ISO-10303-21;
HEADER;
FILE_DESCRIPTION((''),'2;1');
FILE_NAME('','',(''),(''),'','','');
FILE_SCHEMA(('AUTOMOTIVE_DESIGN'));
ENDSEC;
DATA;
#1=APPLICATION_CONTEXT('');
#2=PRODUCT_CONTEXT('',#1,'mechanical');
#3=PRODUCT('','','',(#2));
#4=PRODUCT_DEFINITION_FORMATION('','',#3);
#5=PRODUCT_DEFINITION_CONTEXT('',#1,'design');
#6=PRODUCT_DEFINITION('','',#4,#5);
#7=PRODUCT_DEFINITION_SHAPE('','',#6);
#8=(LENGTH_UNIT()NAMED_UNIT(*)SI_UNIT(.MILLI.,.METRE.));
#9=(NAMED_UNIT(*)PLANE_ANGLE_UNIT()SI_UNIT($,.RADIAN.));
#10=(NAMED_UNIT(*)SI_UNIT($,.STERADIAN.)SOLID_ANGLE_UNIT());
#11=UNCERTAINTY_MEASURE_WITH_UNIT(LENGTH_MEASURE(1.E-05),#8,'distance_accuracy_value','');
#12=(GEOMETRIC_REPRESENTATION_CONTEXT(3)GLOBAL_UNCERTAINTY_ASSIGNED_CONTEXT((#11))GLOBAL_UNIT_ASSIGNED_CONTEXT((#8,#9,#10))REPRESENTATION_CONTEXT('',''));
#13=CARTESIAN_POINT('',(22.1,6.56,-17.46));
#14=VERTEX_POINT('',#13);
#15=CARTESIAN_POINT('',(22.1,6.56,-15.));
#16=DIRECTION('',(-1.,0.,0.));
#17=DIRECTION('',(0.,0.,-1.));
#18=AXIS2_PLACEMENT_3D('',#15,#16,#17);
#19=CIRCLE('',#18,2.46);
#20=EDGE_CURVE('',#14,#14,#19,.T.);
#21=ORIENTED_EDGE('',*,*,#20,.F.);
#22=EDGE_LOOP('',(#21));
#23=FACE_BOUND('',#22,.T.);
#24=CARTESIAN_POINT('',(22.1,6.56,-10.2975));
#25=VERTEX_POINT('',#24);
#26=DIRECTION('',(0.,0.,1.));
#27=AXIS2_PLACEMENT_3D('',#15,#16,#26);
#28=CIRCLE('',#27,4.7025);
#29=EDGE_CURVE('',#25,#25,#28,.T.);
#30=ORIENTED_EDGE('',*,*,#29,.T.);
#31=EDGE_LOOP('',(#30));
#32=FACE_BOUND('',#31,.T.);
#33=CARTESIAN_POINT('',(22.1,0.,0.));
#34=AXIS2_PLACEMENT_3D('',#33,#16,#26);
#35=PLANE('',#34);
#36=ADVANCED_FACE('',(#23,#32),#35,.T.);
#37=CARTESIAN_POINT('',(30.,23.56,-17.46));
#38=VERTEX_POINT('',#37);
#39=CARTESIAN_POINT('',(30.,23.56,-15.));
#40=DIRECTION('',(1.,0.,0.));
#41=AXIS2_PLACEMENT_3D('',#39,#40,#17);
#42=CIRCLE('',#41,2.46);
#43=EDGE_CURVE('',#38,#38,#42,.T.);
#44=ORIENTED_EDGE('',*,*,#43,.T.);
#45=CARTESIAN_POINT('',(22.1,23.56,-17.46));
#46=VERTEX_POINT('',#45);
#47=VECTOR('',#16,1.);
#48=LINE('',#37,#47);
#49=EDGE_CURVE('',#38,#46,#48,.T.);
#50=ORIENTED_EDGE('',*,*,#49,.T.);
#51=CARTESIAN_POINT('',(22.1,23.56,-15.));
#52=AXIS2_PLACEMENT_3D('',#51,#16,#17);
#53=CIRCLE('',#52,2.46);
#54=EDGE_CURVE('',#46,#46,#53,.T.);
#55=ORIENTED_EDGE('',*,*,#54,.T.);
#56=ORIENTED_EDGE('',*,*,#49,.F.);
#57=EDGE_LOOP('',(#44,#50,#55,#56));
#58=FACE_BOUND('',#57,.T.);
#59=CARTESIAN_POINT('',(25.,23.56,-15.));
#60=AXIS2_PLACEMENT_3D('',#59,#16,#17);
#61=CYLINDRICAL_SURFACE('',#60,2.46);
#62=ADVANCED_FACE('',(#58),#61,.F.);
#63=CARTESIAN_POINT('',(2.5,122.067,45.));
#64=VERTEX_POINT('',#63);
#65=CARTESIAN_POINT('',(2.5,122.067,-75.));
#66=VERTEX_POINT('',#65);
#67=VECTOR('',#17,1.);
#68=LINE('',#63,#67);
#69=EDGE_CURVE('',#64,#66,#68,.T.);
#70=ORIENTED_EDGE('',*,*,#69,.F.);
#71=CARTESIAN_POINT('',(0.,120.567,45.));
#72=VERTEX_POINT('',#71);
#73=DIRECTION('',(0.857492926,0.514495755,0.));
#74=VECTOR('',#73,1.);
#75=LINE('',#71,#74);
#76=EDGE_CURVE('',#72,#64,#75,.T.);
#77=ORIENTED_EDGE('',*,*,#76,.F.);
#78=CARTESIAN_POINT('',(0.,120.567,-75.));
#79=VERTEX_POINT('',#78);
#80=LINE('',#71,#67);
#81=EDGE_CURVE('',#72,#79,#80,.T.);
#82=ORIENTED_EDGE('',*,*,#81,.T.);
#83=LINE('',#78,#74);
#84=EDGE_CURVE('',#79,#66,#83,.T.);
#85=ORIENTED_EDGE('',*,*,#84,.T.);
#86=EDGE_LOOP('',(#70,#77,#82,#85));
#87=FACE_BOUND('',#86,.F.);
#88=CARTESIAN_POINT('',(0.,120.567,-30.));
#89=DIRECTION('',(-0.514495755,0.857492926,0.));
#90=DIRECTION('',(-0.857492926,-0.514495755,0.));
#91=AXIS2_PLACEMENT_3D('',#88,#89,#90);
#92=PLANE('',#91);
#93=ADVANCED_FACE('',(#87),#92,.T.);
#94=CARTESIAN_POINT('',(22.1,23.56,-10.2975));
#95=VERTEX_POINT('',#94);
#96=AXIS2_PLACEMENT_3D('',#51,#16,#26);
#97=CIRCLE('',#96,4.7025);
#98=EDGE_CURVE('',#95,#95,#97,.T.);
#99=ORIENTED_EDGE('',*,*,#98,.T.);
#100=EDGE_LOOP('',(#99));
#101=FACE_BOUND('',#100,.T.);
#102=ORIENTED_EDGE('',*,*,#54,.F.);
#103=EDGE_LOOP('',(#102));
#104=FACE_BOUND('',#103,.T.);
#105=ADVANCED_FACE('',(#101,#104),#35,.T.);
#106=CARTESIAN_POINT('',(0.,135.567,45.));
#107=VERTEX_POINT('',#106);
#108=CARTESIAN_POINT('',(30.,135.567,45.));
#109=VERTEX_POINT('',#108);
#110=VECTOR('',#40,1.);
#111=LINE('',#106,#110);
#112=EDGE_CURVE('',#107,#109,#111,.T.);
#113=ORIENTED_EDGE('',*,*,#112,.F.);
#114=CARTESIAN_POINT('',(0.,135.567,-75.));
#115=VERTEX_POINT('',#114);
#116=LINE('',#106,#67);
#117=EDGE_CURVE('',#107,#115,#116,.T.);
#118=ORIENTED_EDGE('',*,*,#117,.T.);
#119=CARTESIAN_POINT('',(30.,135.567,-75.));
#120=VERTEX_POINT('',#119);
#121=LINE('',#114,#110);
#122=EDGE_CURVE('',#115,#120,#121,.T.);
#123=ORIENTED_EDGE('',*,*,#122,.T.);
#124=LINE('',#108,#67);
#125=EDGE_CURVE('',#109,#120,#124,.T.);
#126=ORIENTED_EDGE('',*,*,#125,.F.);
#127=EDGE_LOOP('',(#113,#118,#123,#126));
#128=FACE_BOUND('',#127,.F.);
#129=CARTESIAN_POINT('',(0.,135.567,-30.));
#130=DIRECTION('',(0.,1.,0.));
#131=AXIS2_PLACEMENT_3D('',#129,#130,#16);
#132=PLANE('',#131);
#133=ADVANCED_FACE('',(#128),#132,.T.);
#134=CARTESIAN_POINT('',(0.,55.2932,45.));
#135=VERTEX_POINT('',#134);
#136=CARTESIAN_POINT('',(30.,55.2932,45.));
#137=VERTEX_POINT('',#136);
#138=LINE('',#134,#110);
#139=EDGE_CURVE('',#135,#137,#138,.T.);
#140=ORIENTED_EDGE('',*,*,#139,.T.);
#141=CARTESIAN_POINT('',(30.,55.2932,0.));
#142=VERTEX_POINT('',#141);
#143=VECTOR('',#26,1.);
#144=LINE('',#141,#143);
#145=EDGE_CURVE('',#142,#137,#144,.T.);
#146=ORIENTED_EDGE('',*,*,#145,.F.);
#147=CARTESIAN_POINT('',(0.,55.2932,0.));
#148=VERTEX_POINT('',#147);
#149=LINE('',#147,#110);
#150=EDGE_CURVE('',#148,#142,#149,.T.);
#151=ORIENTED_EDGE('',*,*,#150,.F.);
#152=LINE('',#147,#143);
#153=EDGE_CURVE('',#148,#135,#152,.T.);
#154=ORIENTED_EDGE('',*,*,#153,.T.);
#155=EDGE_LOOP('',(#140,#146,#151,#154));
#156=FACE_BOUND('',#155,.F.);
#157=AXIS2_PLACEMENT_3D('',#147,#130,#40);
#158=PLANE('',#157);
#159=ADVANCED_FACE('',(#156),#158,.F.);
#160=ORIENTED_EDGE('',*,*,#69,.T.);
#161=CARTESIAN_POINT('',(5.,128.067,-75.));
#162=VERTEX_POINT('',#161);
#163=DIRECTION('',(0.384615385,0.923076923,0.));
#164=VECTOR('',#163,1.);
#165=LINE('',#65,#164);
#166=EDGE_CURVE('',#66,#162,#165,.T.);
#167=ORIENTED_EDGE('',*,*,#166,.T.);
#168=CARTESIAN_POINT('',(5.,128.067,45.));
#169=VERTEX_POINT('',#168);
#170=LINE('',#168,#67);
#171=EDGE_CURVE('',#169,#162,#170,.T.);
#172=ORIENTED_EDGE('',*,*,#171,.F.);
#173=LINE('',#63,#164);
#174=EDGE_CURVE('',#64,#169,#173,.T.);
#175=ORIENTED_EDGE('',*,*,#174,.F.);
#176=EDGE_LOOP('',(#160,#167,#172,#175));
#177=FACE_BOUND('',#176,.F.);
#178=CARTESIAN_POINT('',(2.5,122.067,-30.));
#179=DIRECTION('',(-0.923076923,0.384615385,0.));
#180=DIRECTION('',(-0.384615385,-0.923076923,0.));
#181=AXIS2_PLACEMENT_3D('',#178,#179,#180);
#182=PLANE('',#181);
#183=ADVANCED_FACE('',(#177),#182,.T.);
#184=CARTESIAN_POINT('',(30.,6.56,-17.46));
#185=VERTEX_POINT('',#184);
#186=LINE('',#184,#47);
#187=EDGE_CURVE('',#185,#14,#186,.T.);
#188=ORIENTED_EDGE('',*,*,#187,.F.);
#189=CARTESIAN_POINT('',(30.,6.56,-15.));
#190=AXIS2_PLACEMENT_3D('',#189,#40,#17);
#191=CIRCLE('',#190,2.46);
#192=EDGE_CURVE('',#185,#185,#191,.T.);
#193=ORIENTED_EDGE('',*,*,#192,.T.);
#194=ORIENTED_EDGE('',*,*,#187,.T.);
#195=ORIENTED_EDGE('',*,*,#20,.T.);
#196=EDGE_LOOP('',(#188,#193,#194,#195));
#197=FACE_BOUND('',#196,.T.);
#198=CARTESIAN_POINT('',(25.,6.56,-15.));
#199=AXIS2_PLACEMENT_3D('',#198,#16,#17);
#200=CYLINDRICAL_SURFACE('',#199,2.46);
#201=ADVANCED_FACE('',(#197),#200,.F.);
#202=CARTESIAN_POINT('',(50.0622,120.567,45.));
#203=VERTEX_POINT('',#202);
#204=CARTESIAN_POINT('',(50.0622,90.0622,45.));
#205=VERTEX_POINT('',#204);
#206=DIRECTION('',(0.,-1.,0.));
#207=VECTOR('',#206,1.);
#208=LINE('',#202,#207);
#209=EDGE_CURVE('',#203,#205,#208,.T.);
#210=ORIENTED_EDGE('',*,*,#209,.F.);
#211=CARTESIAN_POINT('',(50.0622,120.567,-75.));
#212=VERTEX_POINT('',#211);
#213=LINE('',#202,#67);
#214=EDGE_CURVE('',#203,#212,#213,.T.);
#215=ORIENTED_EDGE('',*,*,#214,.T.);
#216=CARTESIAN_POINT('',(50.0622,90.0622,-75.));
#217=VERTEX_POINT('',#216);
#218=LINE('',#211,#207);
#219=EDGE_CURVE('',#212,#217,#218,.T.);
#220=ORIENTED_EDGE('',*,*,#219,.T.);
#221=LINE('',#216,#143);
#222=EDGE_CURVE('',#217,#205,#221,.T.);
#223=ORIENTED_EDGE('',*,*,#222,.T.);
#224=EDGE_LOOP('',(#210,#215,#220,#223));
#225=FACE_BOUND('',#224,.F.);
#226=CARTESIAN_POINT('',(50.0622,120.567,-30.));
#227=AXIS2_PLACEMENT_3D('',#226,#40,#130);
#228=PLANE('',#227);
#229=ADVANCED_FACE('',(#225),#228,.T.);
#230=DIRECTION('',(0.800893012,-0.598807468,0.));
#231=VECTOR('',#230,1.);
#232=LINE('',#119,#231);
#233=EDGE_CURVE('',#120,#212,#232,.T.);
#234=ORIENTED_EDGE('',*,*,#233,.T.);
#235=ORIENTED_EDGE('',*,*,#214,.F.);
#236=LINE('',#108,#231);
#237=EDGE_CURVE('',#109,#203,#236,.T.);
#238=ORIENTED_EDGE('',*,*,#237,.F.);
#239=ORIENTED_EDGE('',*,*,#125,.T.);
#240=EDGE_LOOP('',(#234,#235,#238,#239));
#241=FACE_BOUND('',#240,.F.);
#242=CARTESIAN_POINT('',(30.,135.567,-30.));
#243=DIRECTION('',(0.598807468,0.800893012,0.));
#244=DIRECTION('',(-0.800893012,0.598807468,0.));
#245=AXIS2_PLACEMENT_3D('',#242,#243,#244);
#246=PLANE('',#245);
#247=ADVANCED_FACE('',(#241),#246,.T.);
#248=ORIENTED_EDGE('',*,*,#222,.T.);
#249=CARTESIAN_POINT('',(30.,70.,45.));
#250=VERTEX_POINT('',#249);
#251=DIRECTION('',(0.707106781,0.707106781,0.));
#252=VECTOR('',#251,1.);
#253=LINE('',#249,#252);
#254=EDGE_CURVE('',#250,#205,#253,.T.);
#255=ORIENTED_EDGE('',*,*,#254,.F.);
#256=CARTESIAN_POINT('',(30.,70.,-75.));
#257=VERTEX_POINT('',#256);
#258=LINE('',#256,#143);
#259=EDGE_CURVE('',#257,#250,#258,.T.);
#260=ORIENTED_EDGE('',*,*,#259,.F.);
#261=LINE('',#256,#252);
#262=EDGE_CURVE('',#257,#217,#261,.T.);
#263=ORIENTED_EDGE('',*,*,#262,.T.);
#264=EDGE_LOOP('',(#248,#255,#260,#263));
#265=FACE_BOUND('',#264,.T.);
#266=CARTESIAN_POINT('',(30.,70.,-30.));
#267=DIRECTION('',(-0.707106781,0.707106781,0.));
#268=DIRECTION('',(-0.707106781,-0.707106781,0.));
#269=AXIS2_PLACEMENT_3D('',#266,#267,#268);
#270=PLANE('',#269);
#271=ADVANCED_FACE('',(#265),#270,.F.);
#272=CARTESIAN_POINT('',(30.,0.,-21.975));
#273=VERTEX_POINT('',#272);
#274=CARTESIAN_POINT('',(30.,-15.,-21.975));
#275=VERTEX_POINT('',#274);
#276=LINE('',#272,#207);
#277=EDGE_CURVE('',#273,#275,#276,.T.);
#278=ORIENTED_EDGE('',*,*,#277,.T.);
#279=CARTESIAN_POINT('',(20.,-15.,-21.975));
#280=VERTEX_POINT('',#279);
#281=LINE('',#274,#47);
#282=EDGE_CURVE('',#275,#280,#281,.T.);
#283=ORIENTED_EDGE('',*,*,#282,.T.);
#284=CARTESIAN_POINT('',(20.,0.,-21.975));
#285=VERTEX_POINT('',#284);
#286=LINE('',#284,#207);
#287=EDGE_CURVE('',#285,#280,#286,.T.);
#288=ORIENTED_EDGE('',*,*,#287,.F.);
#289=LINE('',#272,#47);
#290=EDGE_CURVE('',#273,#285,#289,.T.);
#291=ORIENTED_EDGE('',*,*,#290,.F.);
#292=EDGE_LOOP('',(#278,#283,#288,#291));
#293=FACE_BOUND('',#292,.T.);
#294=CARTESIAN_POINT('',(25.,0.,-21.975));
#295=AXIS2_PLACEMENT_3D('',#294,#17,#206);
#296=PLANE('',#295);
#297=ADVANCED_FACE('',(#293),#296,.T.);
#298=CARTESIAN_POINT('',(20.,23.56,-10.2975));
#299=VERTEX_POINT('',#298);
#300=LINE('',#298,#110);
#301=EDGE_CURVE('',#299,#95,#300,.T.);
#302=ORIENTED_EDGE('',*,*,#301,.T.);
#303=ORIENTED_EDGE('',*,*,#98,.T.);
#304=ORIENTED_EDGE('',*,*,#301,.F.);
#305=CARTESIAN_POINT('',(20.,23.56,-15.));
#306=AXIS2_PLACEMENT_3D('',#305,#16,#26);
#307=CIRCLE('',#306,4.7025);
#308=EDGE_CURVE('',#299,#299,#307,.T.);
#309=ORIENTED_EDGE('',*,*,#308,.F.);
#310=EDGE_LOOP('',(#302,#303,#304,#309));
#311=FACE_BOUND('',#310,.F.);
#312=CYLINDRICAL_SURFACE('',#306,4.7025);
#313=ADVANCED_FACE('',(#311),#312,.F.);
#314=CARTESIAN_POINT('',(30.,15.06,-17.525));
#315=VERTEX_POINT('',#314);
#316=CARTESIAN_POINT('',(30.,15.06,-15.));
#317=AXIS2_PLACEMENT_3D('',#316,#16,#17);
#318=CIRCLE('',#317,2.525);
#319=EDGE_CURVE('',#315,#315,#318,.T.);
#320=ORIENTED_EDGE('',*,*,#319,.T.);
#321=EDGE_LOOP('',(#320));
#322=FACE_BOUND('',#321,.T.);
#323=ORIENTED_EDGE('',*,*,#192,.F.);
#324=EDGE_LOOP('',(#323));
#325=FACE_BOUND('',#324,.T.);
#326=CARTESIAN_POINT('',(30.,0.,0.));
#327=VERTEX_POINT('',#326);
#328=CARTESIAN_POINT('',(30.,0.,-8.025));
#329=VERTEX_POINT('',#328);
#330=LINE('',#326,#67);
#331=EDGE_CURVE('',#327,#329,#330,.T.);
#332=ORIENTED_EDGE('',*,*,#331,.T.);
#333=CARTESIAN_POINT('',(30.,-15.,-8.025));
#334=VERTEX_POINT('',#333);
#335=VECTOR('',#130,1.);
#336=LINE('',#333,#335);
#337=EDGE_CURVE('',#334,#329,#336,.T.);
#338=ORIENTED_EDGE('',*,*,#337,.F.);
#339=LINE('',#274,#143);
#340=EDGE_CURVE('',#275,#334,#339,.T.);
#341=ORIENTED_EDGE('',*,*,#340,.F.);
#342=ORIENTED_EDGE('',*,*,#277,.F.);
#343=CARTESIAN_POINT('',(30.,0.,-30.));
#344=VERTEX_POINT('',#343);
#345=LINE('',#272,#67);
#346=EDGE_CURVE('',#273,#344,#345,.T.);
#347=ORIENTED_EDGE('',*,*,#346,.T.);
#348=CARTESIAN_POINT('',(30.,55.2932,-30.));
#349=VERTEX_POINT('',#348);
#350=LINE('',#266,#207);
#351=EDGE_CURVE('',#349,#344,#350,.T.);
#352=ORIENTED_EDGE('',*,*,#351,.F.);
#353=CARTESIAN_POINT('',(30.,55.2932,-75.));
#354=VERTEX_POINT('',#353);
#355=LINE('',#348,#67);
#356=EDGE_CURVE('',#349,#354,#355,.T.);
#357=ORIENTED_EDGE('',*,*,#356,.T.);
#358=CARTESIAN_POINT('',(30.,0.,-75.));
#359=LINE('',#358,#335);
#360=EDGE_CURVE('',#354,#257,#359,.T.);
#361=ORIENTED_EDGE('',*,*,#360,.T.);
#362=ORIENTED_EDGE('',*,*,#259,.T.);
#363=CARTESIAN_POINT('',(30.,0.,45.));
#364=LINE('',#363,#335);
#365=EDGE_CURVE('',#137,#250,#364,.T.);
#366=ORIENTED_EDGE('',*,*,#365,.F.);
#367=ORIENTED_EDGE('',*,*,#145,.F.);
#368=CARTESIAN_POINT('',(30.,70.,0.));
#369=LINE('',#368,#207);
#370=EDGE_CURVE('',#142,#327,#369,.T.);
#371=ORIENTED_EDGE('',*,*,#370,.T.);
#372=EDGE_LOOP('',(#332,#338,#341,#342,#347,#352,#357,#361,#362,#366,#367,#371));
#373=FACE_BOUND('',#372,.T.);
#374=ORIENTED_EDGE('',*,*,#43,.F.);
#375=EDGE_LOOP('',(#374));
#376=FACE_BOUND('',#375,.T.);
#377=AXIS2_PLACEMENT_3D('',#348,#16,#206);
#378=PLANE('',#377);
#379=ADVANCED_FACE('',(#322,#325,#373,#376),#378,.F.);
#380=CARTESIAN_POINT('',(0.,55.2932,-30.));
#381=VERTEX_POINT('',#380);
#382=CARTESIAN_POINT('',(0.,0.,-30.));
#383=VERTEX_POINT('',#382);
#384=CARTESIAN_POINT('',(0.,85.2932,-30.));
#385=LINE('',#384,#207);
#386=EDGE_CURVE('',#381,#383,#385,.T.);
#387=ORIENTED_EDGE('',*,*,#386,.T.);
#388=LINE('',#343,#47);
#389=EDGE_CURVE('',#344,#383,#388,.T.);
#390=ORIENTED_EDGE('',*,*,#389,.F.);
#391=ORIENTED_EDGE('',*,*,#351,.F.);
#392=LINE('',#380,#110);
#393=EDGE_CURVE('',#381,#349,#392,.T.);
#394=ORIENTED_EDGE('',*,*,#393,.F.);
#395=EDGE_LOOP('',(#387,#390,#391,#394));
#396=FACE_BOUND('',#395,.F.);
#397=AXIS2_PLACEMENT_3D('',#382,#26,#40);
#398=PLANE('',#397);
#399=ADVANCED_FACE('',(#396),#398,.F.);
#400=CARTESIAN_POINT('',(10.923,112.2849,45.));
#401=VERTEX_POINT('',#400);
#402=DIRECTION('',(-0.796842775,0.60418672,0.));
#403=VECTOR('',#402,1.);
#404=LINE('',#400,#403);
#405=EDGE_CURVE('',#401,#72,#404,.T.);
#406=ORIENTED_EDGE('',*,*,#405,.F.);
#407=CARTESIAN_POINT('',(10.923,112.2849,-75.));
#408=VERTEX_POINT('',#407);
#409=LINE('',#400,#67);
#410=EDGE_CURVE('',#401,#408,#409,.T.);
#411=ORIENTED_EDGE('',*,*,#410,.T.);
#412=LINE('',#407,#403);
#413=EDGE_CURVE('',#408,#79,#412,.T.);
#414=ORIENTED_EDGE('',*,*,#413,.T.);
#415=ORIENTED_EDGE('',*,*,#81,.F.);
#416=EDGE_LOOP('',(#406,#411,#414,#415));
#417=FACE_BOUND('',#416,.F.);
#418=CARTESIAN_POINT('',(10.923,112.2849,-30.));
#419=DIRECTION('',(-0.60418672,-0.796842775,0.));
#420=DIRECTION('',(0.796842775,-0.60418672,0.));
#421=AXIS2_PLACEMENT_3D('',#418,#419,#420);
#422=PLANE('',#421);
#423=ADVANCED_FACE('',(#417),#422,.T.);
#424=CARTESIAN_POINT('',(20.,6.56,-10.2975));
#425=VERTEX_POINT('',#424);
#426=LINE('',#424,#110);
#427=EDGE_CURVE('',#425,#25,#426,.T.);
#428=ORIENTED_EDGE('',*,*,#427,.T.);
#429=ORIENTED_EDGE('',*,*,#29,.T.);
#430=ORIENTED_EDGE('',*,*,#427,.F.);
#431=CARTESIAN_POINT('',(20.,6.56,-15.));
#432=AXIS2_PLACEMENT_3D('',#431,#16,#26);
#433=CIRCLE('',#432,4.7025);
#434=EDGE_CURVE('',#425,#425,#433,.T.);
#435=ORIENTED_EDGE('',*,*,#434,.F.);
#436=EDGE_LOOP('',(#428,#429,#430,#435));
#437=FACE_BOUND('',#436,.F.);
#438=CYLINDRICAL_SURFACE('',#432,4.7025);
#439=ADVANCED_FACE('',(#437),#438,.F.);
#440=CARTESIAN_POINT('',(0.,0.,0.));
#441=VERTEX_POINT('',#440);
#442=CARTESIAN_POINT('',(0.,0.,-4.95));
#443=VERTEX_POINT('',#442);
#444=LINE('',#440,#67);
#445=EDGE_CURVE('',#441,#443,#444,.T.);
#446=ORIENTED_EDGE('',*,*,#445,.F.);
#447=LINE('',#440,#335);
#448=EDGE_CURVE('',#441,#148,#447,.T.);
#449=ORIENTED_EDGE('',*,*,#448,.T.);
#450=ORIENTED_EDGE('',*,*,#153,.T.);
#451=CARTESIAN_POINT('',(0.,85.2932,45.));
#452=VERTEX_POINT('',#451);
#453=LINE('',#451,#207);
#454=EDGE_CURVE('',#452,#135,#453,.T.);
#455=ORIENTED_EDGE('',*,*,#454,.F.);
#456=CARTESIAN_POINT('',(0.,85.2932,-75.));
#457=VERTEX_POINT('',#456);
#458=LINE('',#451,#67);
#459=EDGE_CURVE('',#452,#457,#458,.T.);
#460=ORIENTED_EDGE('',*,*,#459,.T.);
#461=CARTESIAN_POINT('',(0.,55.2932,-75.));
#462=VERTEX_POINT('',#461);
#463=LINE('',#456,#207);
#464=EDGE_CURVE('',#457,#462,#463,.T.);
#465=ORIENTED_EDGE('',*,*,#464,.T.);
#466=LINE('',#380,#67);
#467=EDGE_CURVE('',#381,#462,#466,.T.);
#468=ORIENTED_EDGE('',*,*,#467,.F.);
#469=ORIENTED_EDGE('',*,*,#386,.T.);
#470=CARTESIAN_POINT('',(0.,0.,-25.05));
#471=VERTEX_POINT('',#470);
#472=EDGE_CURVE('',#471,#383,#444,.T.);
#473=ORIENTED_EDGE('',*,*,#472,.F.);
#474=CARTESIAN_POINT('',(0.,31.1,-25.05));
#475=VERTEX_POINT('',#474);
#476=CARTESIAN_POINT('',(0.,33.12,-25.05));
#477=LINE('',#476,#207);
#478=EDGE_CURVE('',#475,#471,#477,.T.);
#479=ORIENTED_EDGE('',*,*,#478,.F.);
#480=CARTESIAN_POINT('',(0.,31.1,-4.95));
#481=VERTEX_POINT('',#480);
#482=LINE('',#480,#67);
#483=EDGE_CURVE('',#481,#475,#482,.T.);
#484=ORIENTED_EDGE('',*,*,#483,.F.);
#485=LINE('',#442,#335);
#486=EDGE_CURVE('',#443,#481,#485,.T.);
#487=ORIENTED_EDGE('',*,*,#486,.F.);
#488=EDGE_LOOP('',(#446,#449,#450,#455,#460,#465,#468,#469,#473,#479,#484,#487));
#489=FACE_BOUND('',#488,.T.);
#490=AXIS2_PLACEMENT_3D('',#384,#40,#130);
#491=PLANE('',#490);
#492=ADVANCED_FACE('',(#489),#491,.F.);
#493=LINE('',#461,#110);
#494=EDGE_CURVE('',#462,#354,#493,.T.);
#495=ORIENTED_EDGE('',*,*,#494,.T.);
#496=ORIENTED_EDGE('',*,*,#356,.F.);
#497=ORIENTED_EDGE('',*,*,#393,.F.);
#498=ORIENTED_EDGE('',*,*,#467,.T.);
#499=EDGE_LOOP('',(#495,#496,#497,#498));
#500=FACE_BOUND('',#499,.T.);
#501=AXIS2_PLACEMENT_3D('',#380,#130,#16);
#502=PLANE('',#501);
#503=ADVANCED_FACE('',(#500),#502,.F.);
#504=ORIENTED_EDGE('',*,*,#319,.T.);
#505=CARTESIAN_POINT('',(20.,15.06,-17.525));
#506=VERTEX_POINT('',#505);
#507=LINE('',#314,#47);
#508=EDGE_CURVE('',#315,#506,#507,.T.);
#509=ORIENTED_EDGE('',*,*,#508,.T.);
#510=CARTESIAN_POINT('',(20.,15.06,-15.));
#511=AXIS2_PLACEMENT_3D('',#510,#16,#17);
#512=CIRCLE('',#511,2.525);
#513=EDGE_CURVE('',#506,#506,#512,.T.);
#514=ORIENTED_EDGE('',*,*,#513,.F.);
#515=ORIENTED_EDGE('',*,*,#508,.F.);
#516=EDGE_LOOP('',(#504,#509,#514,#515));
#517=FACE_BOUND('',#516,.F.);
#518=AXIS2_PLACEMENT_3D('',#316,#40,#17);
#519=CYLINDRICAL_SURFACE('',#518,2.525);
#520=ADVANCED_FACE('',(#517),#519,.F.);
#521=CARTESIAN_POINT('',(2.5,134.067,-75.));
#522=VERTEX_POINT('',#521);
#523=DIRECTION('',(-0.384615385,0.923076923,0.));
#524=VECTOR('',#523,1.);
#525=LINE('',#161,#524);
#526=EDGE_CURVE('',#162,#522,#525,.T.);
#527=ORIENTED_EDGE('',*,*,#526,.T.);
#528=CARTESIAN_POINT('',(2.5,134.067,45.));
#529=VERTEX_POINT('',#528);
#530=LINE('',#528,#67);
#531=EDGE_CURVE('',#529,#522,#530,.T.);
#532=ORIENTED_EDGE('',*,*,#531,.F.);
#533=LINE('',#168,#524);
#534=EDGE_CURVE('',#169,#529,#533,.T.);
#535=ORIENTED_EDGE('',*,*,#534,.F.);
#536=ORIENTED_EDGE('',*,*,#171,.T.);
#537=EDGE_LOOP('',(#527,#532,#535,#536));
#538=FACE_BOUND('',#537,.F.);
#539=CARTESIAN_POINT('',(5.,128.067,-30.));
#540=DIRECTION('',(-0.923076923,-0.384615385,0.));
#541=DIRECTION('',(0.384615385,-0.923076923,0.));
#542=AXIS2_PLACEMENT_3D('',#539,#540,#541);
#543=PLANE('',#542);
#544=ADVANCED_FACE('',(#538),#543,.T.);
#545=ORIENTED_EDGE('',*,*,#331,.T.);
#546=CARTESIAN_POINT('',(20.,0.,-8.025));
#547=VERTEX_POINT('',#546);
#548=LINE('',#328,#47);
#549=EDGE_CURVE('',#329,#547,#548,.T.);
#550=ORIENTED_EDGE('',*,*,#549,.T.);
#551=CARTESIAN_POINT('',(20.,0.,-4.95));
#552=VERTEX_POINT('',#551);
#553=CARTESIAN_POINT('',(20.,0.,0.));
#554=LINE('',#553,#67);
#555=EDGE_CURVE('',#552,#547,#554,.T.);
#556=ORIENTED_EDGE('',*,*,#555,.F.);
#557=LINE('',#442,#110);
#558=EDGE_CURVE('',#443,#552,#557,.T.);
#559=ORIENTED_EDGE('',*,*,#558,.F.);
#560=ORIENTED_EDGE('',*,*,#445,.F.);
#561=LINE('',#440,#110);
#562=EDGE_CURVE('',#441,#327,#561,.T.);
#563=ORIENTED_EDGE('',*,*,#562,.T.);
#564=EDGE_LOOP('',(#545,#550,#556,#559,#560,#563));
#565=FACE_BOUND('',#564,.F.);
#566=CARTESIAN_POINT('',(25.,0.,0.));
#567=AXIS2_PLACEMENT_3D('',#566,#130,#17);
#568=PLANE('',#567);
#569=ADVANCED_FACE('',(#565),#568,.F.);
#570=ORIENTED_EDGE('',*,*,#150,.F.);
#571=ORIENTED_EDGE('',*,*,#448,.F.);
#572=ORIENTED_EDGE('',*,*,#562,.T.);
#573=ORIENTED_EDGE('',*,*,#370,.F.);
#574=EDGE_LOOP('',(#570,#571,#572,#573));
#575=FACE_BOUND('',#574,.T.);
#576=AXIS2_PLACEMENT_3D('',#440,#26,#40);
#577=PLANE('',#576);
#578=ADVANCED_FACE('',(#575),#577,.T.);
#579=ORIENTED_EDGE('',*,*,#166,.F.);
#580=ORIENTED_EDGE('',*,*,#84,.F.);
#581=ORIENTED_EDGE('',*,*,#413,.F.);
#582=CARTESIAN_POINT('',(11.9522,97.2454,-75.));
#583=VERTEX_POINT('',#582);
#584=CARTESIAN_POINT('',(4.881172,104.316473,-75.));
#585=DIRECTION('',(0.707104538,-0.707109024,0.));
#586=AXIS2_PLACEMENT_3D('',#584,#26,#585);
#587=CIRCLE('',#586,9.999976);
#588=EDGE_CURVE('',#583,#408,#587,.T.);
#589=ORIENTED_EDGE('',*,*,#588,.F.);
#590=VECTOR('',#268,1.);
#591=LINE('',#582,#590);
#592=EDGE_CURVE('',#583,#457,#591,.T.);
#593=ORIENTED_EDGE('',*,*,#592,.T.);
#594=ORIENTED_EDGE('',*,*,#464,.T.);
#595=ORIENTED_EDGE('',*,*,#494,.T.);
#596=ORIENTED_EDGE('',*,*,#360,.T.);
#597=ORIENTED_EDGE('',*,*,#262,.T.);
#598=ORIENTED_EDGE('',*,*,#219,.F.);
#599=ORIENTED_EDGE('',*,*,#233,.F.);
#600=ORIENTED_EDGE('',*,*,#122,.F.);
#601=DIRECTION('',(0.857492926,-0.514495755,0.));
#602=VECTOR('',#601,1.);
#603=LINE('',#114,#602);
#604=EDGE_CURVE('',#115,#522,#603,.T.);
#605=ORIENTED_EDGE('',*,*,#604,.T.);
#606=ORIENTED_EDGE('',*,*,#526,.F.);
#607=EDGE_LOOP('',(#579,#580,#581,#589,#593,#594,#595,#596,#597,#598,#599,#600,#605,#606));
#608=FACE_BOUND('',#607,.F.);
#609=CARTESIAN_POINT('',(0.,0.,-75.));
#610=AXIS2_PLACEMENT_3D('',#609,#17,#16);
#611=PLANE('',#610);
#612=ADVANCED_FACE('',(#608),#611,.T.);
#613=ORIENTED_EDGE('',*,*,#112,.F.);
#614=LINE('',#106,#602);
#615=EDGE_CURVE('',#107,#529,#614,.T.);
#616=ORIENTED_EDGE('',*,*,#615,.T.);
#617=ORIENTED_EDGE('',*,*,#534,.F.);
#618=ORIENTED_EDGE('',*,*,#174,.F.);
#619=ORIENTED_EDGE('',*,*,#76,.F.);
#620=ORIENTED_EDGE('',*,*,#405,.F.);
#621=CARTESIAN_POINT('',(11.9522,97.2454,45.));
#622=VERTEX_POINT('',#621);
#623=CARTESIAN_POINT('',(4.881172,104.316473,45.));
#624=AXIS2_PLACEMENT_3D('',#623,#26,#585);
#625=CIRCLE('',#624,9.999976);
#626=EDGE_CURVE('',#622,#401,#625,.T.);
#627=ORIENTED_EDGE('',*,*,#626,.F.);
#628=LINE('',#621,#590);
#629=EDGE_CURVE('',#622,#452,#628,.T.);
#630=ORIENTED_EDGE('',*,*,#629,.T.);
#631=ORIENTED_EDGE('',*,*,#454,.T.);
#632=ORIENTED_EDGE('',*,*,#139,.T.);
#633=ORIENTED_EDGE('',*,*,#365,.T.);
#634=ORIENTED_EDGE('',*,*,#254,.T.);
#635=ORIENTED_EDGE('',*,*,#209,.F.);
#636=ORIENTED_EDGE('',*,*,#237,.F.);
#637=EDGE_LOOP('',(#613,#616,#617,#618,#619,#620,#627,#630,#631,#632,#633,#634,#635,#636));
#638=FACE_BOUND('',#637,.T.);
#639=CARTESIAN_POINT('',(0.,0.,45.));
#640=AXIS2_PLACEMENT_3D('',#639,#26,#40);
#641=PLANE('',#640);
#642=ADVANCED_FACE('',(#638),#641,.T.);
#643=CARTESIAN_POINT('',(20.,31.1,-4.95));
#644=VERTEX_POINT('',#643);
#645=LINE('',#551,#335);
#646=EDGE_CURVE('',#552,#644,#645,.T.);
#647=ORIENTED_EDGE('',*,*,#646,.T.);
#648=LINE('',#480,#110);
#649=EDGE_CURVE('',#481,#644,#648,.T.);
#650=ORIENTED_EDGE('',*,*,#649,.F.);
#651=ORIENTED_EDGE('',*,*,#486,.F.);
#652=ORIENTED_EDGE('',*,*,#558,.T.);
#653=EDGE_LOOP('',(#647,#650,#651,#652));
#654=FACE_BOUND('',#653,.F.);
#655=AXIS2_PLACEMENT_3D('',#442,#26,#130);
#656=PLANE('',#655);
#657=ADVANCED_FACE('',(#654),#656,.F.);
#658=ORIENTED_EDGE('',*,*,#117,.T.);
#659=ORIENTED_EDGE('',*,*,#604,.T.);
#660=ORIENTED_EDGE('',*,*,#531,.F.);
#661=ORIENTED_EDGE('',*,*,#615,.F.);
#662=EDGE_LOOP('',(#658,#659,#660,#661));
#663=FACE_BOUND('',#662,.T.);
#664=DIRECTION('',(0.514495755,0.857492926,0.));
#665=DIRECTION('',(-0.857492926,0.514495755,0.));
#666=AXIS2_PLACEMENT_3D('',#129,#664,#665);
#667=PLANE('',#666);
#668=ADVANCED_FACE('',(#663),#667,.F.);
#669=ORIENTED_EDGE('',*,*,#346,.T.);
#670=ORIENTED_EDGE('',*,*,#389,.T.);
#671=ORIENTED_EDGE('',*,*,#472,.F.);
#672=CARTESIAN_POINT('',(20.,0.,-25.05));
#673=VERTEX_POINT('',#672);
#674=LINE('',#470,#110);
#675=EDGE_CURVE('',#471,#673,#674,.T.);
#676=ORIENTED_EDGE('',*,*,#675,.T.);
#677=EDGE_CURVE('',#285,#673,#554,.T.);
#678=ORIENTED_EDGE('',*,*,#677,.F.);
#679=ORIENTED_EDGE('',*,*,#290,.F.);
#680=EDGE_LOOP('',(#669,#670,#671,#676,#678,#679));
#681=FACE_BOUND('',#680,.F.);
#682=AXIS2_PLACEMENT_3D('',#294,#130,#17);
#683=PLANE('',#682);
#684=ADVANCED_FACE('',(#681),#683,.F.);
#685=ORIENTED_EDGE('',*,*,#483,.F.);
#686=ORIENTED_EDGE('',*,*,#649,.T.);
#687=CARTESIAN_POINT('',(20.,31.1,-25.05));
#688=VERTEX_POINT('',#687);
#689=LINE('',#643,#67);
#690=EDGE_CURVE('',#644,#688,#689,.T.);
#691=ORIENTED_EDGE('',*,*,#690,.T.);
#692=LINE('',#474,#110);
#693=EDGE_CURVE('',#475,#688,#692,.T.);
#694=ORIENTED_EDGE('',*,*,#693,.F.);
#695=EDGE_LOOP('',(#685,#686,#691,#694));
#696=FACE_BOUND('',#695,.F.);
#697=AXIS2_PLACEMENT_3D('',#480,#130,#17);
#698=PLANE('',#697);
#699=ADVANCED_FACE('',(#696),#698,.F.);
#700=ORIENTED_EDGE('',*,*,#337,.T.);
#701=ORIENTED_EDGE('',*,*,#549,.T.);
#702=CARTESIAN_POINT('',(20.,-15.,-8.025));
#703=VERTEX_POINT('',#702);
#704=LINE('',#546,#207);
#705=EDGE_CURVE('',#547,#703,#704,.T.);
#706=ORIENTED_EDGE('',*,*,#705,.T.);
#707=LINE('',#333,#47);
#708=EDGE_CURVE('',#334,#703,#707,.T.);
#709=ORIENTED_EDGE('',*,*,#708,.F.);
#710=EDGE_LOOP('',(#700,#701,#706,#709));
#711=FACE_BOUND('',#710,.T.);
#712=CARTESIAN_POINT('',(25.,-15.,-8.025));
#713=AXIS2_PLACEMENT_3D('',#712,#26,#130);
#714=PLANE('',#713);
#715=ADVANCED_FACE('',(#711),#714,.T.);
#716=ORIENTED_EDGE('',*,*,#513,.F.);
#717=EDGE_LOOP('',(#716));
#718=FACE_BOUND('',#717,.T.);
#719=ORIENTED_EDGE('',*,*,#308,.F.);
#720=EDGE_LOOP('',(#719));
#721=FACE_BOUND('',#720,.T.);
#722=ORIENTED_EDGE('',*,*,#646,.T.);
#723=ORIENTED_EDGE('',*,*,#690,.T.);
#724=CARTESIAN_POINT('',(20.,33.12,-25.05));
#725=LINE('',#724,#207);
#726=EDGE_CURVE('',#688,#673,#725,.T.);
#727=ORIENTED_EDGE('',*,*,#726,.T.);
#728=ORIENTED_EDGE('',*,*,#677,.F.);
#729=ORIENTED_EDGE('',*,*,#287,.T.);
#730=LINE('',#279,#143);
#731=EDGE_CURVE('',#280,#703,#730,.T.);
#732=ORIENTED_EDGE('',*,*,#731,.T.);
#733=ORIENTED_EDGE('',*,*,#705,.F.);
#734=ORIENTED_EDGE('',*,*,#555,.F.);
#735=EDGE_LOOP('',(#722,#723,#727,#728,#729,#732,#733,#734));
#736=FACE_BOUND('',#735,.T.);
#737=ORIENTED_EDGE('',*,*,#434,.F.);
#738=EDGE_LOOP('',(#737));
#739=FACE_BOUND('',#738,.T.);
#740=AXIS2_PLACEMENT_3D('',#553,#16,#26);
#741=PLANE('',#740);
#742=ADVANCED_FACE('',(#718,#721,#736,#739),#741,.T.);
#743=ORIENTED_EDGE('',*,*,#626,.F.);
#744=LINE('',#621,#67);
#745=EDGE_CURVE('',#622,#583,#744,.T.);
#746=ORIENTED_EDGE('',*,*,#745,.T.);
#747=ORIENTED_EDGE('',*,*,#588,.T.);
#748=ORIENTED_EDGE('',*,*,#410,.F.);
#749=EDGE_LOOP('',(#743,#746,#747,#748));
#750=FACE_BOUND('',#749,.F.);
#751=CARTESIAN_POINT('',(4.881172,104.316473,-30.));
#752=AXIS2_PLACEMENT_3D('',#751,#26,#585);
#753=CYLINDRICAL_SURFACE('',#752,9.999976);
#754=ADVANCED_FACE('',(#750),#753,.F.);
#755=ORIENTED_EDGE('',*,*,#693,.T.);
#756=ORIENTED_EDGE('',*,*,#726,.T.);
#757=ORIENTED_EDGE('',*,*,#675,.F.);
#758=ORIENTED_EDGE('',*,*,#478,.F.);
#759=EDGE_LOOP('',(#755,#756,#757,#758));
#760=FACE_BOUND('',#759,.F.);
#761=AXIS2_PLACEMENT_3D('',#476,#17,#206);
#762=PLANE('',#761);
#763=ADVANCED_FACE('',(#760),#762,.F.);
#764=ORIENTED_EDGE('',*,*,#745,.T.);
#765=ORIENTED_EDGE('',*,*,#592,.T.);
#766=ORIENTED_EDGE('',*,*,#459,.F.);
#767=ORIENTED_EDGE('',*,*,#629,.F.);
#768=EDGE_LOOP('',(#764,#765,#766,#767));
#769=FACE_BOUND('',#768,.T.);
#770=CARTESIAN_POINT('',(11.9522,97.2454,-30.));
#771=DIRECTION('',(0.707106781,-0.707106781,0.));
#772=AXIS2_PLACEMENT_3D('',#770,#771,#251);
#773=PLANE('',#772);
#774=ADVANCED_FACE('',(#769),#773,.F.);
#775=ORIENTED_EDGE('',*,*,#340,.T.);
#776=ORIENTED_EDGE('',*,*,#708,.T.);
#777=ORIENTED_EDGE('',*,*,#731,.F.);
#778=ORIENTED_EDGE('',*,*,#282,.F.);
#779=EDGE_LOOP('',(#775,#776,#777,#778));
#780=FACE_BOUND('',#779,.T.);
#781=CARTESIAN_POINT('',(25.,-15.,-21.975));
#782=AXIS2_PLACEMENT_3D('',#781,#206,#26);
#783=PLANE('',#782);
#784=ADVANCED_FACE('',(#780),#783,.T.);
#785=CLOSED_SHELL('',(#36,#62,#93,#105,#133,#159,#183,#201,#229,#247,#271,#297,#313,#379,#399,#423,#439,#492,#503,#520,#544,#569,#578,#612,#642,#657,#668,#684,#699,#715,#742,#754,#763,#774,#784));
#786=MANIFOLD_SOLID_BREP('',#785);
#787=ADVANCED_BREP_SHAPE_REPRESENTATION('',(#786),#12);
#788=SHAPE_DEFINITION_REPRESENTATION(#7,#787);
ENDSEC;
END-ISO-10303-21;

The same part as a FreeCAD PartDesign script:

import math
import FreeCAD as App
import Part
import Sketcher
Q = App.Units.Quantity

doc = App.newDocument("Part")
body = doc.addObject("PartDesign::Body", "Body")

# Sketch on XY plane
sketch1 = body.newObject("Sketcher::SketchObject", "Sketch")
sketch1.AttachmentSupport = (doc.getObject("XY_Plane"), [""])
sketch1.MapMode = "FlatFace"
sketch1.addGeometry([
    Part.LineSegment(App.Vector(0, 40, 0), App.Vector(0, 0, 0)),
    Part.LineSegment(App.Vector(0, 0, 0), App.Vector(25, 0, 0)),
    Part.LineSegment(App.Vector(25, 0, 0), App.Vector(25, 40, 0)),
    Part.LineSegment(App.Vector(25, 40, 0), App.Vector(0, 40, 0)),
], False)
sketch1.addConstraint([
    Sketcher.Constraint("Coincident", 0, 2, 1, 1),
    Sketcher.Constraint("Coincident", 1, 2, 2, 1),
    Sketcher.Constraint("Coincident", 2, 2, 3, 1),
    Sketcher.Constraint("Coincident", 3, 2, 0, 1),
    Sketcher.Constraint("Vertical", 0),
    Sketcher.Constraint("Horizontal", 1),
    Sketcher.Constraint("Vertical", 2),
    Sketcher.Constraint("Horizontal", 3),
    Sketcher.Constraint("Coincident", 0, 2, -1, 1),
    Sketcher.Constraint("DistanceX", 1, 1, 1, 2, 25.0),
    Sketcher.Constraint("DistanceY", 0, 2, 0, 1, 40.0),
])
pad1 = body.newObject("PartDesign::Pad", "Pad")
pad1.Profile = sketch1
pad1.Length = 30
pad1.Reversed = True

# Sketch on YZ plane
sketch2 = body.newObject("Sketcher::SketchObject", "Sketch001")
sketch2.AttachmentSupport = (doc.getObject("YZ_Plane"), [""])
sketch2.MapMode = "FlatFace"
sketch2.AttachmentOffset = App.Placement(App.Vector(0, 0, 25), App.Rotation())
sketch2.addGeometry(Part.Circle(App.Vector(6.6, -15, 0), App.Vector(0, 0, 1), 2.5), False)
sketch2.addConstraint([
    Sketcher.Constraint("Diameter", 0, 4.92),
    Sketcher.Constraint("DistanceY", 0, 3, -1, 1, 15.0),
    Sketcher.Constraint("DistanceX", -1, 1, 0, 3, 6.56),
])
pocket1 = body.newObject("PartDesign::Pocket", "Pocket")
pocket1.Profile = sketch2
pocket1.Length = 30

# Sketch on YZ plane
sketch3 = body.newObject("Sketcher::SketchObject", "Sketch002")
sketch3.AttachmentSupport = (doc.getObject("YZ_Plane"), [""])
sketch3.MapMode = "FlatFace"
sketch3.addGeometry([
    Part.LineSegment(App.Vector(0, -25, 0), App.Vector(0, -5, 0)),
    Part.LineSegment(App.Vector(0, -5, 0), App.Vector(33, -5, 0)),
    Part.LineSegment(App.Vector(33, -5, 0), App.Vector(33, -25, 0)),
    Part.LineSegment(App.Vector(33, -25, 0), App.Vector(0, -25, 0)),
], False)
sketch3.addConstraint([
    Sketcher.Constraint("Coincident", 0, 2, 1, 1),
    Sketcher.Constraint("Coincident", 1, 2, 2, 1),
    Sketcher.Constraint("Coincident", 2, 2, 3, 1),
    Sketcher.Constraint("Coincident", 3, 2, 0, 1),
    Sketcher.Constraint("Vertical", 0),
    Sketcher.Constraint("Horizontal", 1),
    Sketcher.Constraint("Vertical", 2),
    Sketcher.Constraint("Horizontal", 3),
    Sketcher.Constraint("PointOnObject", 0, 2, -2),
    Sketcher.Constraint("DistanceY", 0, 1, 0, 2, 20.1),
    Sketcher.Constraint("DistanceX", 1, 1, 1, 2, 33.12),
    Sketcher.Constraint("DistanceY", 0, 2, -1, 1, 4.95),
])
pocket2 = body.newObject("PartDesign::Pocket", "Pocket001")
pocket2.Profile = sketch3
pocket2.Length = 20
pocket2.Reversed = True

# Sketch on XZ plane
sketch4 = body.newObject("Sketcher::SketchObject", "Sketch003")
sketch4.AttachmentSupport = (doc.getObject("XZ_Plane"), [""])
sketch4.MapMode = "FlatFace"
sketch4.addGeometry([
    Part.LineSegment(App.Vector(25, -8, 0), App.Vector(20, -8, 0)),
    Part.LineSegment(App.Vector(20, -8, 0), App.Vector(20, -22, 0)),
    Part.LineSegment(App.Vector(20, -22, 0), App.Vector(25, -22, 0)),
    Part.LineSegment(App.Vector(25, -22, 0), App.Vector(25, -8, 0)),
], False)
sketch4.addConstraint([
    Sketcher.Constraint("Coincident", 0, 2, 1, 1),
    Sketcher.Constraint("Coincident", 1, 2, 2, 1),
    Sketcher.Constraint("Coincident", 2, 2, 3, 1),
    Sketcher.Constraint("Coincident", 3, 2, 0, 1),
    Sketcher.Constraint("Horizontal", 0),
    Sketcher.Constraint("Vertical", 1),
    Sketcher.Constraint("Horizontal", 2),
    Sketcher.Constraint("Vertical", 3),
    Sketcher.Constraint("DistanceY", 1, 2, 1, 1, 13.95),
    Sketcher.Constraint("DistanceX", 0, 2, 0, 1, 5.0),
    Sketcher.Constraint("DistanceX", -1, 1, 0, 2, 20.0),
    Sketcher.Constraint("DistanceY", 0, 2, -1, 1, 8.025),
])
pad2 = body.newObject("PartDesign::Pad", "Pad001")
pad2.Profile = sketch4
pad2.Length = 15

# Sketch on YZ plane
sketch5 = body.newObject("Sketcher::SketchObject", "Sketch004")
sketch5.AttachmentSupport = (doc.getObject("YZ_Plane"), [""])
sketch5.MapMode = "FlatFace"
sketch5.AttachmentOffset = App.Placement(App.Vector(0, 0, 20), App.Rotation())
sketch5.addGeometry([
    Part.Circle(App.Vector(6.6, -15, 0), App.Vector(0, 0, 1), 4.7),
    Part.Circle(App.Vector(6.6, -15, 0), App.Vector(0, 0, 1), 2.5),
], False)
sketch5.addConstraint([
    Sketcher.Constraint("Coincident", 1, 3, 0, 3),
    Sketcher.Constraint("Diameter", 0, 9.405),
    Sketcher.Constraint("Diameter", 1, 4.92),
    Sketcher.Constraint("DistanceY", 0, 3, -1, 1, 15.0),
    Sketcher.Constraint("DistanceX", -1, 1, 0, 3, 6.56),
])
pocket3 = body.newObject("PartDesign::Pocket", "Pocket002")
pocket3.Profile = sketch5
pocket3.Length = 2.1
pocket3.Reversed = True

# Sketch on YZ plane
sketch6 = body.newObject("Sketcher::SketchObject", "Sketch005")
sketch6.AttachmentSupport = (doc.getObject("YZ_Plane"), [""])
sketch6.MapMode = "FlatFace"
sketch6.AttachmentOffset = App.Placement(App.Vector(0, 0, 25), App.Rotation())
sketch6.addGeometry(Part.Circle(App.Vector(23.6, -15, 0), App.Vector(0, 0, 1), 2.5), False)
sketch6.addConstraint([
    Sketcher.Constraint("Diameter", 0, 4.92),
    Sketcher.Constraint("DistanceY", 0, 3, -1, 1, 15.0),
    Sketcher.Constraint("DistanceX", -1, 1, 0, 3, 23.56),
])
pocket4 = body.newObject("PartDesign::Pocket", "Pocket003")
pocket4.Profile = sketch6
pocket4.Length = 10

# Sketch on YZ plane
sketch7 = body.newObject("Sketcher::SketchObject", "Sketch006")
sketch7.AttachmentSupport = (doc.getObject("YZ_Plane"), [""])
sketch7.MapMode = "FlatFace"
sketch7.AttachmentOffset = App.Placement(App.Vector(0, 0, 20), App.Rotation())
sketch7.addGeometry([
    Part.Circle(App.Vector(23.6, -15, 0), App.Vector(0, 0, 1), 4.7),
    Part.Circle(App.Vector(23.6, -15, 0), App.Vector(0, 0, 1), 2.5),
], False)
sketch7.addConstraint([
    Sketcher.Constraint("Coincident", 1, 3, 0, 3),
    Sketcher.Constraint("Diameter", 0, 9.405),
    Sketcher.Constraint("Diameter", 1, 4.92),
    Sketcher.Constraint("DistanceY", 0, 3, -1, 1, 15.0),
    Sketcher.Constraint("DistanceX", -1, 1, 0, 3, 23.56),
])
pocket5 = body.newObject("PartDesign::Pocket", "Pocket004")
pocket5.Profile = sketch7
pocket5.Length = 2.1
pocket5.Reversed = True

# Sketch on YZ plane
sketch8 = body.newObject("Sketcher::SketchObject", "Sketch007")
sketch8.AttachmentSupport = (doc.getObject("YZ_Plane"), [""])
sketch8.MapMode = "FlatFace"
sketch8.AttachmentOffset = App.Placement(App.Vector(0, 0, 25), App.Rotation())
sketch8.addGeometry([
    Part.LineSegment(App.Vector(0, -30, 0), App.Vector(40, -30, 0)),  # 0
    Part.LineSegment(App.Vector(40, -30, 0), App.Vector(40, 0, 0)),  # 1
    Part.LineSegment(App.Vector(40, 0, 0), App.Vector(0, 0, 0)),  # 2
    Part.LineSegment(App.Vector(0, 0, 0), App.Vector(0, -8, 0)),  # 3
    Part.LineSegment(App.Vector(0, -8, 0), App.Vector(-15, -8, 0)),  # 4
    Part.LineSegment(App.Vector(-15, -8, 0), App.Vector(-15, -22, 0)),  # 5
    Part.LineSegment(App.Vector(-15, -22, 0), App.Vector(0, -22, 0)),  # 6
    Part.LineSegment(App.Vector(0, -22, 0), App.Vector(0, -30, 0)),  # 7
    Part.Circle(App.Vector(6.6, -15, 0), App.Vector(0, 0, 1), 2.5),  # 8
    Part.Circle(App.Vector(23.6, -15, 0), App.Vector(0, 0, 1), 2.5),  # 9
], False)
sketch8.addConstraint([
    Sketcher.Constraint("Coincident", 0, 2, 1, 1),
    Sketcher.Constraint("Coincident", 1, 2, 2, 1),
    Sketcher.Constraint("Coincident", 2, 2, 3, 1),
    Sketcher.Constraint("Coincident", 3, 2, 4, 1),
    Sketcher.Constraint("Coincident", 4, 2, 5, 1),
    Sketcher.Constraint("Coincident", 5, 2, 6, 1),
    Sketcher.Constraint("Coincident", 6, 2, 7, 1),
    Sketcher.Constraint("Coincident", 7, 2, 0, 1),
    Sketcher.Constraint("Horizontal", 0),
    Sketcher.Constraint("Vertical", 1),
    Sketcher.Constraint("Horizontal", 2),
    Sketcher.Constraint("Vertical", 3),
    Sketcher.Constraint("Horizontal", 4),
    Sketcher.Constraint("Vertical", 5),
    Sketcher.Constraint("Horizontal", 6),
    Sketcher.Constraint("Vertical", 7),
    Sketcher.Constraint("Coincident", 2, 2, -1, 1),
    Sketcher.Constraint("Equal", 8, 9),
    Sketcher.Constraint("PointOnObject", 6, 2, -2),
    Sketcher.Constraint("Horizontal", 8, 3, 9, 3),
    Sketcher.Constraint("Equal", 3, 7),
    Sketcher.Constraint("Diameter", 8, 4.92),
    Sketcher.Constraint("DistanceX", 0, 1, 0, 2, 40.0),
    Sketcher.Constraint("DistanceX", 4, 2, 4, 1, 15.0),
    Sketcher.Constraint("DistanceY", 1, 1, 1, 2, 30.0),
    Sketcher.Constraint("DistanceY", 8, 3, -1, 1, 15.0),
    Sketcher.Constraint("DistanceX", 8, 3, 9, 3, 17.0),
    Sketcher.Constraint("DistanceY", 5, 2, 5, 1, 13.95),
    Sketcher.Constraint("DistanceX", -1, 1, 8, 3, 6.56),
])
pad3 = body.newObject("PartDesign::Pad", "Pad002")
pad3.Profile = sketch8
pad3.Length = 5

# Sketch on XZ plane
sketch9 = body.newObject("Sketcher::SketchObject", "Sketch008")
sketch9.AttachmentSupport = (doc.getObject("XZ_Plane"), [""])
sketch9.MapMode = "FlatFace"
sketch9.AttachmentOffset = App.Placement(App.Vector(0, 0, -40), App.Rotation())
sketch9.addGeometry([
    Part.LineSegment(App.Vector(30, -30, 0), App.Vector(0, -30, 0)),
    Part.LineSegment(App.Vector(0, -30, 0), App.Vector(0, 0, 0)),
    Part.LineSegment(App.Vector(0, 0, 0), App.Vector(30, 0, 0)),
    Part.LineSegment(App.Vector(30, 0, 0), App.Vector(30, -30, 0)),
], False)
sketch9.addConstraint([
    Sketcher.Constraint("Coincident", 0, 2, 1, 1),
    Sketcher.Constraint("Coincident", 1, 2, 2, 1),
    Sketcher.Constraint("Coincident", 2, 2, 3, 1),
    Sketcher.Constraint("Coincident", 3, 2, 0, 1),
    Sketcher.Constraint("Horizontal", 0),
    Sketcher.Constraint("Vertical", 1),
    Sketcher.Constraint("Horizontal", 2),
    Sketcher.Constraint("Vertical", 3),
    Sketcher.Constraint("Coincident", 1, 2, -1, 1),
    Sketcher.Constraint("Equal", 2, 1),
    Sketcher.Constraint("DistanceX", 0, 2, 0, 1, 30.0),
])
pad4 = body.newObject("PartDesign::Pad", "Pad003")
pad4.Profile = sketch9
pad4.Length = 30
pad4.Reversed = True

# Sketch on YZ plane
sketch10 = body.newObject("Sketcher::SketchObject", "Sketch009")
sketch10.AttachmentSupport = (doc.getObject("YZ_Plane"), [""])
sketch10.MapMode = "FlatFace"
sketch10.AttachmentOffset = App.Placement(App.Vector(0, 0, 30), App.Rotation())
sketch10.addGeometry(Part.Circle(App.Vector(15.1, -15, 0), App.Vector(0, 0, 1), 2.5), False)
sketch10.addConstraint([
    Sketcher.Constraint("Diameter", 0, 5.05),
    Sketcher.Constraint("DistanceY", 0, 3, -1, 1, 15.0),
    Sketcher.Constraint("DistanceX", -1, 1, 0, 3, 15.06),
])
pocket6 = body.newObject("PartDesign::Pocket", "Pocket005")
pocket6.Profile = sketch10
pocket6.Length = 30

# Sketch on YZ plane
sketch11 = body.newObject("Sketcher::SketchObject", "Sketch010")
sketch11.AttachmentSupport = (doc.getObject("YZ_Plane"), [""])
sketch11.MapMode = "FlatFace"
sketch11.addGeometry([
    Part.LineSegment(App.Vector(33.1, -5, 0), App.Vector(33.1, -25.1, 0)),
    Part.LineSegment(App.Vector(33.1, -25.1, 0), App.Vector(31.1, -25.1, 0)),
    Part.LineSegment(App.Vector(31.1, -25.1, 0), App.Vector(31.1, -5, 0)),
    Part.LineSegment(App.Vector(31.1, -5, 0), App.Vector(33.1, -5, 0)),
], False)
sketch11.addConstraint([
    Sketcher.Constraint("Coincident", 0, 2, 1, 1),
    Sketcher.Constraint("Coincident", 1, 2, 2, 1),
    Sketcher.Constraint("Coincident", 2, 2, 3, 1),
    Sketcher.Constraint("Coincident", 3, 2, 0, 1),
    Sketcher.Constraint("Vertical", 0),
    Sketcher.Constraint("Horizontal", 1),
    Sketcher.Constraint("Vertical", 2),
    Sketcher.Constraint("Horizontal", 3),
    Sketcher.Constraint("DistanceX", 1, 2, 1, 1, 2.02),
    Sketcher.Constraint("DistanceY", 0, 2, 0, 1, 20.1),
    Sketcher.Constraint("DistanceX", -1, 1, 1, 2, 31.1),
    Sketcher.Constraint("DistanceY", 0, 2, -1, 1, 25.05),
])
pad5 = body.newObject("PartDesign::Pad", "Pad004")
pad5.Profile = sketch11
pad5.Length = 20

# Sketch on XY plane
sketch12 = body.newObject("Sketcher::SketchObject", "Sketch011")
sketch12.AttachmentSupport = (doc.getObject("XY_Plane"), [""])
sketch12.MapMode = "FlatFace"
sketch12.addGeometry([
    Part.LineSegment(App.Vector(0, 85.3, 0), App.Vector(0, 70, 0)),  # 0
    Part.LineSegment(App.Vector(0, 70, 0), App.Vector(30, 70, 0)),  # 1
    Part.LineSegment(App.Vector(30, 70, 0), App.Vector(50.1, 90.1, 0)),  # 2
    Part.LineSegment(App.Vector(50.1, 90.1, 0), App.Vector(50.1, 120.6, 0)),  # 3
    Part.LineSegment(App.Vector(50.1, 120.6, 0), App.Vector(30, 135.6, 0)),  # 4
    Part.LineSegment(App.Vector(30, 135.6, 0), App.Vector(0, 135.6, 0)),  # 5
    Part.LineSegment(App.Vector(0, 135.6, 0), App.Vector(2.5, 134.1, 0)),  # 6
    Part.LineSegment(App.Vector(2.5, 134.1, 0), App.Vector(5, 128.1, 0)),  # 7
    Part.LineSegment(App.Vector(5, 128.1, 0), App.Vector(2.5, 122.1, 0)),  # 8
    Part.LineSegment(App.Vector(2.5, 122.1, 0), App.Vector(0, 120.6, 0)),  # 9
    Part.LineSegment(App.Vector(0, 120.6, 0), App.Vector(10.9, 112.3, 0)),  # 10
    Part.ArcOfCircle(Part.Circle(App.Vector(4.9, 104.3, 0), App.Vector(0, 0, 1), 10), math.radians(-45), math.radians(53)),  # 11
    Part.LineSegment(App.Vector(12, 97.2, 0), App.Vector(0, 85.3, 0)),  # 12
], False)
sketch12.addConstraint([
    Sketcher.Constraint("Coincident", 0, 2, 1, 1),
    Sketcher.Constraint("Coincident", 1, 2, 2, 1),
    Sketcher.Constraint("Coincident", 2, 2, 3, 1),
    Sketcher.Constraint("Coincident", 3, 2, 4, 1),
    Sketcher.Constraint("Coincident", 4, 2, 5, 1),
    Sketcher.Constraint("Coincident", 5, 2, 6, 1),
    Sketcher.Constraint("Coincident", 6, 2, 7, 1),
    Sketcher.Constraint("Coincident", 7, 2, 8, 1),
    Sketcher.Constraint("Coincident", 8, 2, 9, 1),
    Sketcher.Constraint("Coincident", 9, 2, 10, 1),
    Sketcher.Constraint("Tangent", 10, 2, 11, 2),
    Sketcher.Constraint("Tangent", 11, 1, 12, 1),
    Sketcher.Constraint("Coincident", 12, 2, 0, 1),
    Sketcher.Constraint("Vertical", 0),
    Sketcher.Constraint("Horizontal", 1),
    Sketcher.Constraint("Vertical", 3),
    Sketcher.Constraint("Horizontal", 5),
    Sketcher.Constraint("PointOnObject", 0, 2, -2),
    Sketcher.Constraint("PointOnObject", 5, 2, -2),
    Sketcher.Constraint("PointOnObject", 9, 2, -2),
    Sketcher.Constraint("Parallel", 2, 12),
    Sketcher.Constraint("Horizontal", 3, 2, 9, 2),
    Sketcher.Constraint("Vertical", 1, 2, 4, 2),
    Sketcher.Constraint("Vertical", 6, 2, 8, 2),
    Sketcher.Constraint("Equal", 7, 8),
    Sketcher.Constraint("Equal", 6, 9),
    Sketcher.Constraint("Radius", 11, 10.0),
    Sketcher.Constraint("DistanceX", 1, 1, 1, 2, 30.0),
    Sketcher.Constraint("Angle", 2, Q("45 deg")),
    Sketcher.Constraint("DistanceY", -1, 1, 0, 2, 70.0),
    Sketcher.Constraint("DistanceX", -1, 1, 7, 2, 5.0),
    Sketcher.Constraint("DistanceY", 3, 2, 4, 2, 15.0),
    Sketcher.Constraint("DistanceY", 7, 2, 6, 2, 6.0),
    Sketcher.Constraint("Distance", 7, 6.5),
    Sketcher.Constraint("Angle", 10, Q("-37.1703 deg")),
    Sketcher.Constraint("Distance", 12, 16.903),
    Sketcher.Constraint("DistanceY", 0, 2, 0, 1, 15.2932),
    Sketcher.Constraint("DistanceY", 3, 1, 3, 2, 30.5048),
])
pad6 = body.newObject("PartDesign::Pad", "Pad005")
pad6.Profile = sketch12
pad6.Length = 30
pad6.Reversed = True

# Sketch on XY plane
sketch13 = body.newObject("Sketcher::SketchObject", "Sketch012")
sketch13.AttachmentSupport = (doc.getObject("XY_Plane"), [""])
sketch13.MapMode = "FlatFace"
sketch13.addGeometry([
    Part.LineSegment(App.Vector(0, 55.3, 0), App.Vector(30, 55.3, 0)),  # 0
    Part.LineSegment(App.Vector(30, 55.3, 0), App.Vector(30, 70, 0)),  # 1
    Part.LineSegment(App.Vector(30, 70, 0), App.Vector(50.1, 90.1, 0)),  # 2
    Part.LineSegment(App.Vector(50.1, 90.1, 0), App.Vector(50.1, 120.6, 0)),  # 3
    Part.LineSegment(App.Vector(50.1, 120.6, 0), App.Vector(30, 135.6, 0)),  # 4
    Part.LineSegment(App.Vector(30, 135.6, 0), App.Vector(0, 135.6, 0)),  # 5
    Part.LineSegment(App.Vector(0, 135.6, 0), App.Vector(2.5, 134.1, 0)),  # 6
    Part.LineSegment(App.Vector(2.5, 134.1, 0), App.Vector(5, 128.1, 0)),  # 7
    Part.LineSegment(App.Vector(5, 128.1, 0), App.Vector(2.5, 122.1, 0)),  # 8
    Part.LineSegment(App.Vector(2.5, 122.1, 0), App.Vector(0, 120.6, 0)),  # 9
    Part.LineSegment(App.Vector(0, 120.6, 0), App.Vector(10.9, 112.3, 0)),  # 10
    Part.ArcOfCircle(Part.Circle(App.Vector(4.9, 104.3, 0), App.Vector(0, 0, 1), 10), math.radians(-45), math.radians(53)),  # 11
    Part.LineSegment(App.Vector(12, 97.2, 0), App.Vector(0, 85.3, 0)),  # 12
    Part.LineSegment(App.Vector(0, 85.3, 0), App.Vector(0, 55.3, 0)),  # 13
], False)
sketch13.addConstraint([
    Sketcher.Constraint("Coincident", 0, 2, 1, 1),
    Sketcher.Constraint("Coincident", 1, 2, 2, 1),
    Sketcher.Constraint("Coincident", 2, 2, 3, 1),
    Sketcher.Constraint("Coincident", 3, 2, 4, 1),
    Sketcher.Constraint("Coincident", 4, 2, 5, 1),
    Sketcher.Constraint("Coincident", 5, 2, 6, 1),
    Sketcher.Constraint("Coincident", 6, 2, 7, 1),
    Sketcher.Constraint("Coincident", 7, 2, 8, 1),
    Sketcher.Constraint("Coincident", 8, 2, 9, 1),
    Sketcher.Constraint("Coincident", 9, 2, 10, 1),
    Sketcher.Constraint("Tangent", 10, 2, 11, 2),
    Sketcher.Constraint("Tangent", 11, 1, 12, 1),
    Sketcher.Constraint("Coincident", 12, 2, 13, 1),
    Sketcher.Constraint("Coincident", 13, 2, 0, 1),
    Sketcher.Constraint("Horizontal", 0),
    Sketcher.Constraint("Vertical", 1),
    Sketcher.Constraint("Vertical", 3),
    Sketcher.Constraint("Horizontal", 5),
    Sketcher.Constraint("Vertical", 13),
    Sketcher.Constraint("PointOnObject", 5, 2, -2),
    Sketcher.Constraint("PointOnObject", 9, 2, -2),
    Sketcher.Constraint("PointOnObject", 12, 2, -2),
    Sketcher.Constraint("Parallel", 2, 12),
    Sketcher.Constraint("Horizontal", 3, 2, 9, 2),
    Sketcher.Constraint("Vertical", 1, 2, 4, 2),
    Sketcher.Constraint("Vertical", 6, 2, 8, 2),
    Sketcher.Constraint("Equal", 5, 13),
    Sketcher.Constraint("Equal", 7, 8),
    Sketcher.Constraint("Equal", 6, 9),
    Sketcher.Constraint("DistanceX", 0, 1, 0, 2, 30.0),
    Sketcher.Constraint("Radius", 11, 10.0),
    Sketcher.Constraint("Angle", 2, Q("45 deg")),
    Sketcher.Constraint("DistanceY", -1, 1, 1, 2, 70.0),
    Sketcher.Constraint("DistanceX", -1, 1, 7, 2, 5.0),
    Sketcher.Constraint("DistanceY", 3, 2, 4, 2, 15.0),
    Sketcher.Constraint("DistanceY", 7, 2, 6, 2, 6.0),
    Sketcher.Constraint("Distance", 7, 6.5),
    Sketcher.Constraint("Angle", 10, Q("-37.1703 deg")),
    Sketcher.Constraint("Distance", 12, 16.903),
    Sketcher.Constraint("DistanceY", 1, 1, 1, 2, 14.7068),
    Sketcher.Constraint("DistanceY", 3, 1, 3, 2, 30.5048),
])
pad7 = body.newObject("PartDesign::Pad", "Pad006")
pad7.Profile = sketch13
pad7.Length = 45
doc.recompute()

datumplane = body.newObject("PartDesign::Plane", "DatumPlane")
datumplane.AttachmentSupport = (doc.getObject("XY_Plane"), [""])
datumplane.MapMode = "FlatFace"
datumplane.AttachmentOffset = App.Placement(App.Vector(0, 0, -15), App.Rotation())
mirrored = body.newObject("PartDesign::Mirrored", "Mirrored")
mirrored.Originals = [pad7]
mirrored.MirrorPlane = (datumplane, [""])
body.Tip = mirrored

doc.recompute()
